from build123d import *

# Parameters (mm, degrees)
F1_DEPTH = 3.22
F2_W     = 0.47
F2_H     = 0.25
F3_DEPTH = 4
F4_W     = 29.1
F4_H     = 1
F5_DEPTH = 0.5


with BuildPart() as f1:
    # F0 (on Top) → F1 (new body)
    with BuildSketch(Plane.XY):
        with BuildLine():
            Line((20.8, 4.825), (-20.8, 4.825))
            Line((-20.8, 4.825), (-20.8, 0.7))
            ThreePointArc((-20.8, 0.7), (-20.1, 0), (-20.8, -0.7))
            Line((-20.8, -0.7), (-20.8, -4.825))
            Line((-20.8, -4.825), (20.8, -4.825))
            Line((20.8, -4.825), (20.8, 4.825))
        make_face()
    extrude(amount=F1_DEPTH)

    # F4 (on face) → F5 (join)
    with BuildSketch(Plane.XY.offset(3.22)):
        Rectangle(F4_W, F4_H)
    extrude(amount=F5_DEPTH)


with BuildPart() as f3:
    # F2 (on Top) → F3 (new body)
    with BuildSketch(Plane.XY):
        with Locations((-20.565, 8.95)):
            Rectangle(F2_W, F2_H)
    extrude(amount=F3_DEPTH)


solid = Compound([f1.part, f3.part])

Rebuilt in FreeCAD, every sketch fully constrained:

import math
import FreeCAD as App
import Part
import Sketcher
Q = App.Units.Quantity


def add_polygon(sketch, points):
    """Adds a closed chain of lines whose ends are joined by coincident constraints."""
    first, n = sketch.GeometryCount, len(points)
    for a, b in zip(points, points[1:] + points[:1]):
        sketch.addGeometry(Part.LineSegment(App.Vector(*a, 0), App.Vector(*b, 0)), False)
    for i in range(n):
        sketch.addConstraint(Sketcher.Constraint("Coincident", first + i, 2, first + (i + 1) % n, 1))

doc = App.newDocument("Part")
body = doc.addObject("PartDesign::Body", "Body")

# Sketch on XY plane
sketch1 = body.newObject("Sketcher::SketchObject", "Sketch")
sketch1.AttachmentSupport = (doc.getObject("XY_Plane"), [""])
sketch1.MapMode = "FlatFace"
sketch1.addGeometry(Part.LineSegment(App.Vector(20.8, 4.8, 0), App.Vector(-20.8, 4.8, 0)), False)
sketch1.addGeometry(Part.LineSegment(App.Vector(-20.8, 4.8, 0), App.Vector(-20.8, 0.7, 0)), False)
sketch1.addGeometry(Part.ArcOfCircle(Part.Circle(App.Vector(-20.8, 0, 0), App.Vector(0, 0, 1), 0.7), math.radians(-90), math.radians(90)), False)
sketch1.addGeometry(Part.LineSegment(App.Vector(-20.8, -0.7, 0), App.Vector(-20.8, -4.8, 0)), False)
sketch1.addGeometry(Part.LineSegment(App.Vector(-20.8, -4.8, 0), App.Vector(20.8, -4.8, 0)), False)
sketch1.addGeometry(Part.LineSegment(App.Vector(20.8, -4.8, 0), App.Vector(20.8, 4.8, 0)), False)
sketch1.addConstraint(Sketcher.Constraint("Coincident", 0, 2, 1, 1))
sketch1.addConstraint(Sketcher.Constraint("Coincident", 1, 2, 2, 2))
sketch1.addConstraint(Sketcher.Constraint("Coincident", 2, 1, 3, 1))
sketch1.addConstraint(Sketcher.Constraint("Coincident", 3, 2, 4, 1))
sketch1.addConstraint(Sketcher.Constraint("Coincident", 4, 2, 5, 1))
sketch1.addConstraint(Sketcher.Constraint("Coincident", 5, 2, 0, 1))
sketch1.addConstraint(Sketcher.Constraint("Horizontal", 0))
sketch1.addConstraint(Sketcher.Constraint("Vertical", 1))
sketch1.addConstraint(Sketcher.Constraint("Vertical", 3))
sketch1.addConstraint(Sketcher.Constraint("Horizontal", 4))
sketch1.addConstraint(Sketcher.Constraint("Vertical", 5))
sketch1.addConstraint(Sketcher.Constraint("Symmetric", 0, 2, 4, 2, -1, 1))
sketch1.addConstraint(Sketcher.Constraint("Symmetric", 1, 2, 2, 1, -1))
sketch1.addConstraint(Sketcher.Constraint("Vertical", 2, 3, 0, 2))
sketch1.addConstraint(Sketcher.Constraint("Radius", 2, Q("0.7 mm")))
sketch1.addConstraint(Sketcher.Constraint("DistanceX", 0, 2, 0, 1, Q("41.6 mm")))
sketch1.addConstraint(Sketcher.Constraint("DistanceY", 5, 1, 5, 2, Q("9.65 mm")))
pad1 = body.newObject("PartDesign::Pad", "Pad")
pad1.Profile = sketch1
pad1.Length = 3.22

# Sketch on XY plane
sketch2 = body.newObject("Sketcher::SketchObject", "Sketch001")
sketch2.AttachmentSupport = (doc.getObject("XY_Plane"), [""])
sketch2.MapMode = "FlatFace"
sketch2.AttachmentOffset = App.Placement(App.Vector(0, 0, 3.22), App.Rotation())
add_polygon(sketch2, [(-14.6, 0.5), (-14.6, -0.5), (14.6, -0.5), (14.6, 0.5)])  # lines 0-3
sketch2.addConstraint(Sketcher.Constraint("Vertical", 0))
sketch2.addConstraint(Sketcher.Constraint("Horizontal", 1))
sketch2.addConstraint(Sketcher.Constraint("Vertical", 2))
sketch2.addConstraint(Sketcher.Constraint("Horizontal", 3))
sketch2.addConstraint(Sketcher.Constraint("Symmetric", 0, 2, 2, 2, -1, 1))
sketch2.addConstraint(Sketcher.Constraint("DistanceY", 0, 2, 0, 1, Q("1 mm")))
sketch2.addConstraint(Sketcher.Constraint("DistanceX", 1, 1, 1, 2, Q("29.1 mm")))
pad2 = body.newObject("PartDesign::Pad", "Pad001")
pad2.Profile = sketch2
pad2.Length = 0.5
body2 = doc.addObject("PartDesign::Body", "Body001")

# Sketch on XY plane
sketch3 = body2.newObject("Sketcher::SketchObject", "Sketch002")
sketch3.AttachmentSupport = (doc.getObject("XY_Plane001"), [""])
sketch3.MapMode = "FlatFace"
add_polygon(sketch3, [(-20.8, 9.07), (-20.8, 8.82), (-20.33, 8.82), (-20.33, 9.07)])  # lines 0-3
sketch3.addConstraint(Sketcher.Constraint("Vertical", 0))
sketch3.addConstraint(Sketcher.Constraint("Horizontal", 1))
sketch3.addConstraint(Sketcher.Constraint("Vertical", 2))
sketch3.addConstraint(Sketcher.Constraint("Horizontal", 3))
sketch3.addConstraint(Sketcher.Constraint("DistanceX", 1, 1, 1, 2, Q("0.47 mm")))
sketch3.addConstraint(Sketcher.Constraint("DistanceY", 0, 2, 0, 1, Q("0.25 mm")))
sketch3.addConstraint(Sketcher.Constraint("DistanceX", 0, 2, -1, 1, Q("20.8 mm")))
sketch3.addConstraint(Sketcher.Constraint("DistanceY", -1, 1, 0, 2, Q("8.825 mm")))
pad3 = body2.newObject("PartDesign::Pad", "Pad002")
pad3.Profile = sketch3
pad3.Length = 4

doc.recompute()
